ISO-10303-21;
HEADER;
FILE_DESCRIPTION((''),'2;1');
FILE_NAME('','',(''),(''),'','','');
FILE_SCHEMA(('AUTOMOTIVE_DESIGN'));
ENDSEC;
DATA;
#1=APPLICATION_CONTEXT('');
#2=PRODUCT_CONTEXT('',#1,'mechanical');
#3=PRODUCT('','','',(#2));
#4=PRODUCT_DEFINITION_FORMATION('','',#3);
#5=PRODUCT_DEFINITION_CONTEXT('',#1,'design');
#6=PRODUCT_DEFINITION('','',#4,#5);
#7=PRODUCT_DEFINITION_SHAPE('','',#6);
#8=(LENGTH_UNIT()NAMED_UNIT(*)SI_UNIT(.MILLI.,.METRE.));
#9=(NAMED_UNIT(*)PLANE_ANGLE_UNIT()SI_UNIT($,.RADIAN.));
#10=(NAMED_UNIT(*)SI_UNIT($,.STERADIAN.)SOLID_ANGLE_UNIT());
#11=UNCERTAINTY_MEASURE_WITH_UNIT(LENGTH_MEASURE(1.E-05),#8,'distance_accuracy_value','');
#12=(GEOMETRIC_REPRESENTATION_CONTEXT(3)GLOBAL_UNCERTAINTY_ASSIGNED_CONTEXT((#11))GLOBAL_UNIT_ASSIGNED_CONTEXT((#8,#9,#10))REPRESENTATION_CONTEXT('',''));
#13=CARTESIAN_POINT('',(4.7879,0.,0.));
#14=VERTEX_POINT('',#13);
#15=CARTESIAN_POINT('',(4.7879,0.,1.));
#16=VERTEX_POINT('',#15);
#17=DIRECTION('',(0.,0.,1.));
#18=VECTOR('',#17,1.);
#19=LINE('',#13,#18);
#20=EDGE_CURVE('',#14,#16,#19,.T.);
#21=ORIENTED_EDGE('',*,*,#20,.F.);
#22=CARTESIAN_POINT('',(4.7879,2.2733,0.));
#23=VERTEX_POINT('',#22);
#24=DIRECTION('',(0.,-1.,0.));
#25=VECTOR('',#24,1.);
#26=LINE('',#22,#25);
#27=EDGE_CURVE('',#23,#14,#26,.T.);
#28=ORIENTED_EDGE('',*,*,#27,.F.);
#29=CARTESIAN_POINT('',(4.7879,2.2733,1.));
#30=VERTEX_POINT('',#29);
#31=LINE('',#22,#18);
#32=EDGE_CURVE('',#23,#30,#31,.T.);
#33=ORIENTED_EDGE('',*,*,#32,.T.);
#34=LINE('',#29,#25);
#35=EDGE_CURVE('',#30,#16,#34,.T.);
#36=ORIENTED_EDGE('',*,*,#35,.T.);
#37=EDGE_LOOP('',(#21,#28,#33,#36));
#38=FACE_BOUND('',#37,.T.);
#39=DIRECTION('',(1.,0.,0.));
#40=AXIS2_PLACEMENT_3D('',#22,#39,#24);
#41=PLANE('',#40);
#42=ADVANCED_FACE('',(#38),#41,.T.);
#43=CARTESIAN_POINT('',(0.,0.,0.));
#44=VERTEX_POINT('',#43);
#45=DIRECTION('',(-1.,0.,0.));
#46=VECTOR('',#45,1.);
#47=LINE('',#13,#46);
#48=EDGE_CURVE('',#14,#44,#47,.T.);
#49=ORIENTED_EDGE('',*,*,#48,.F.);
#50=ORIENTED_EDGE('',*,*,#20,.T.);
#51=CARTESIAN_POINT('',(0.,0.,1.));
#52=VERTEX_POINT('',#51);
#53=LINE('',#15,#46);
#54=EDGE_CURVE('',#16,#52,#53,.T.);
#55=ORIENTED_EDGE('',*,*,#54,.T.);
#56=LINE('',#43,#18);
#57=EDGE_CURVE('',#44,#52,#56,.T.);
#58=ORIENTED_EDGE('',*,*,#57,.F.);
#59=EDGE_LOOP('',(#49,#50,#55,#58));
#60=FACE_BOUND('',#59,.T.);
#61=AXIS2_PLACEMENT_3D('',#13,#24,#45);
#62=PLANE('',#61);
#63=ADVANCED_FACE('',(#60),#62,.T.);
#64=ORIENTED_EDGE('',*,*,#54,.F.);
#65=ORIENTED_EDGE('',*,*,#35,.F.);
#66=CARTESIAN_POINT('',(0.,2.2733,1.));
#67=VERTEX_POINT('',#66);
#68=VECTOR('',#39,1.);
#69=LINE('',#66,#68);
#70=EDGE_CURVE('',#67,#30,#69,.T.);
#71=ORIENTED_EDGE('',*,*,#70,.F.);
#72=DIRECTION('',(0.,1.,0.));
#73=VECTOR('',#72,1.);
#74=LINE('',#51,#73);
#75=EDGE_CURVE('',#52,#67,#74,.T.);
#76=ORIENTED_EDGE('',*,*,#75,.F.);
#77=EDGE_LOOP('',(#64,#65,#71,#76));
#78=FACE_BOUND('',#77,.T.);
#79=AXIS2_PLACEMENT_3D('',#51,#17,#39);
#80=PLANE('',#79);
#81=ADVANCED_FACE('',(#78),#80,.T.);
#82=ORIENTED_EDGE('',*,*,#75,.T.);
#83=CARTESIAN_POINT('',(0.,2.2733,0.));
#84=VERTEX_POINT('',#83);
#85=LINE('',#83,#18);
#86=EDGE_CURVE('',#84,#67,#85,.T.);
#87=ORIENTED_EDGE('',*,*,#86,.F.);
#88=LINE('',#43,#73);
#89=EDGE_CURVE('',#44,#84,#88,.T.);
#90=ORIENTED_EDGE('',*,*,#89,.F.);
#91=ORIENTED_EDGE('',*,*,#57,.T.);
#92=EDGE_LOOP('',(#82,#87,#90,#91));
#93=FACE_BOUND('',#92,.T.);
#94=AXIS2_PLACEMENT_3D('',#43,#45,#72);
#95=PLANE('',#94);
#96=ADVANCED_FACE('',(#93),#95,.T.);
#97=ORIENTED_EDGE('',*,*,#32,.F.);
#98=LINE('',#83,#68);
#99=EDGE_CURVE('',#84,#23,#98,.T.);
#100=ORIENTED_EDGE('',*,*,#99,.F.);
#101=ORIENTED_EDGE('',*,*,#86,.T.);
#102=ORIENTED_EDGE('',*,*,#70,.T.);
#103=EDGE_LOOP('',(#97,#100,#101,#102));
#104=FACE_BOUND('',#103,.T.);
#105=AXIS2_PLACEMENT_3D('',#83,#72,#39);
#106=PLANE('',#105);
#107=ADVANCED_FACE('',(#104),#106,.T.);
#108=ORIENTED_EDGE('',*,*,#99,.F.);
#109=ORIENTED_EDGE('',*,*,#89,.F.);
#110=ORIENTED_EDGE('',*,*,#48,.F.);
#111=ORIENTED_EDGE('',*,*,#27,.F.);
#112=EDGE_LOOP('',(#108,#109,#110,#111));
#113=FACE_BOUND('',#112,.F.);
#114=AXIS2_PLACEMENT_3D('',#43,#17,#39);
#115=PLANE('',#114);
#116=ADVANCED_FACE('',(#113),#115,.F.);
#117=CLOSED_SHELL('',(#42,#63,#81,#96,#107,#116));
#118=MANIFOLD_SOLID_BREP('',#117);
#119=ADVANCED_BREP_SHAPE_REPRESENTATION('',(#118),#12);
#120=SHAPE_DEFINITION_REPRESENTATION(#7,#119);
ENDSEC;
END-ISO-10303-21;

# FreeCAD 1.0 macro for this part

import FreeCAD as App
import Part
import Sketcher

V = App.Vector

doc = App.newDocument("Part")
body = doc.addObject("PartDesign::Body", "Body")

sketch1 = body.newObject("Sketcher::SketchObject", "Sketch")
sketch1.AttachmentSupport = (doc.getObject("XY_Plane"), [""])
sketch1.MapMode = "FlatFace"
sketch1.addGeometry([
    Part.LineSegment(V(4.8, 2.3, 0), V(0, 2.3, 0)),
    Part.LineSegment(V(0, 2.3, 0), V(0, 0, 0)),
    Part.LineSegment(V(0, 0, 0), V(4.8, 0, 0)),
    Part.LineSegment(V(4.8, 0, 0), V(4.8, 2.3, 0)),
], False)
sketch1.addConstraint([
    Sketcher.Constraint("Coincident", 0, 2, 1, 1),
    Sketcher.Constraint("Coincident", 1, 2, 2, 1),
    Sketcher.Constraint("Coincident", 2, 2, 3, 1),
    Sketcher.Constraint("Coincident", 3, 2, 0, 1),
    Sketcher.Constraint("Horizontal", 0),
    Sketcher.Constraint("Vertical", 1),
    Sketcher.Constraint("Horizontal", 2),
    Sketcher.Constraint("Vertical", 3),
    Sketcher.Constraint("Coincident", 1, 2, -1, 1),
    Sketcher.Constraint("DistanceX", 0, 2, 0, 1, 4.788),
    Sketcher.Constraint("DistanceY", 1, 2, 1, 1, 2.2733),
])
pad1 = body.newObject("PartDesign::Pad", "Pad")
pad1.Profile = sketch1
pad1.Length = 1

doc.recompute()
